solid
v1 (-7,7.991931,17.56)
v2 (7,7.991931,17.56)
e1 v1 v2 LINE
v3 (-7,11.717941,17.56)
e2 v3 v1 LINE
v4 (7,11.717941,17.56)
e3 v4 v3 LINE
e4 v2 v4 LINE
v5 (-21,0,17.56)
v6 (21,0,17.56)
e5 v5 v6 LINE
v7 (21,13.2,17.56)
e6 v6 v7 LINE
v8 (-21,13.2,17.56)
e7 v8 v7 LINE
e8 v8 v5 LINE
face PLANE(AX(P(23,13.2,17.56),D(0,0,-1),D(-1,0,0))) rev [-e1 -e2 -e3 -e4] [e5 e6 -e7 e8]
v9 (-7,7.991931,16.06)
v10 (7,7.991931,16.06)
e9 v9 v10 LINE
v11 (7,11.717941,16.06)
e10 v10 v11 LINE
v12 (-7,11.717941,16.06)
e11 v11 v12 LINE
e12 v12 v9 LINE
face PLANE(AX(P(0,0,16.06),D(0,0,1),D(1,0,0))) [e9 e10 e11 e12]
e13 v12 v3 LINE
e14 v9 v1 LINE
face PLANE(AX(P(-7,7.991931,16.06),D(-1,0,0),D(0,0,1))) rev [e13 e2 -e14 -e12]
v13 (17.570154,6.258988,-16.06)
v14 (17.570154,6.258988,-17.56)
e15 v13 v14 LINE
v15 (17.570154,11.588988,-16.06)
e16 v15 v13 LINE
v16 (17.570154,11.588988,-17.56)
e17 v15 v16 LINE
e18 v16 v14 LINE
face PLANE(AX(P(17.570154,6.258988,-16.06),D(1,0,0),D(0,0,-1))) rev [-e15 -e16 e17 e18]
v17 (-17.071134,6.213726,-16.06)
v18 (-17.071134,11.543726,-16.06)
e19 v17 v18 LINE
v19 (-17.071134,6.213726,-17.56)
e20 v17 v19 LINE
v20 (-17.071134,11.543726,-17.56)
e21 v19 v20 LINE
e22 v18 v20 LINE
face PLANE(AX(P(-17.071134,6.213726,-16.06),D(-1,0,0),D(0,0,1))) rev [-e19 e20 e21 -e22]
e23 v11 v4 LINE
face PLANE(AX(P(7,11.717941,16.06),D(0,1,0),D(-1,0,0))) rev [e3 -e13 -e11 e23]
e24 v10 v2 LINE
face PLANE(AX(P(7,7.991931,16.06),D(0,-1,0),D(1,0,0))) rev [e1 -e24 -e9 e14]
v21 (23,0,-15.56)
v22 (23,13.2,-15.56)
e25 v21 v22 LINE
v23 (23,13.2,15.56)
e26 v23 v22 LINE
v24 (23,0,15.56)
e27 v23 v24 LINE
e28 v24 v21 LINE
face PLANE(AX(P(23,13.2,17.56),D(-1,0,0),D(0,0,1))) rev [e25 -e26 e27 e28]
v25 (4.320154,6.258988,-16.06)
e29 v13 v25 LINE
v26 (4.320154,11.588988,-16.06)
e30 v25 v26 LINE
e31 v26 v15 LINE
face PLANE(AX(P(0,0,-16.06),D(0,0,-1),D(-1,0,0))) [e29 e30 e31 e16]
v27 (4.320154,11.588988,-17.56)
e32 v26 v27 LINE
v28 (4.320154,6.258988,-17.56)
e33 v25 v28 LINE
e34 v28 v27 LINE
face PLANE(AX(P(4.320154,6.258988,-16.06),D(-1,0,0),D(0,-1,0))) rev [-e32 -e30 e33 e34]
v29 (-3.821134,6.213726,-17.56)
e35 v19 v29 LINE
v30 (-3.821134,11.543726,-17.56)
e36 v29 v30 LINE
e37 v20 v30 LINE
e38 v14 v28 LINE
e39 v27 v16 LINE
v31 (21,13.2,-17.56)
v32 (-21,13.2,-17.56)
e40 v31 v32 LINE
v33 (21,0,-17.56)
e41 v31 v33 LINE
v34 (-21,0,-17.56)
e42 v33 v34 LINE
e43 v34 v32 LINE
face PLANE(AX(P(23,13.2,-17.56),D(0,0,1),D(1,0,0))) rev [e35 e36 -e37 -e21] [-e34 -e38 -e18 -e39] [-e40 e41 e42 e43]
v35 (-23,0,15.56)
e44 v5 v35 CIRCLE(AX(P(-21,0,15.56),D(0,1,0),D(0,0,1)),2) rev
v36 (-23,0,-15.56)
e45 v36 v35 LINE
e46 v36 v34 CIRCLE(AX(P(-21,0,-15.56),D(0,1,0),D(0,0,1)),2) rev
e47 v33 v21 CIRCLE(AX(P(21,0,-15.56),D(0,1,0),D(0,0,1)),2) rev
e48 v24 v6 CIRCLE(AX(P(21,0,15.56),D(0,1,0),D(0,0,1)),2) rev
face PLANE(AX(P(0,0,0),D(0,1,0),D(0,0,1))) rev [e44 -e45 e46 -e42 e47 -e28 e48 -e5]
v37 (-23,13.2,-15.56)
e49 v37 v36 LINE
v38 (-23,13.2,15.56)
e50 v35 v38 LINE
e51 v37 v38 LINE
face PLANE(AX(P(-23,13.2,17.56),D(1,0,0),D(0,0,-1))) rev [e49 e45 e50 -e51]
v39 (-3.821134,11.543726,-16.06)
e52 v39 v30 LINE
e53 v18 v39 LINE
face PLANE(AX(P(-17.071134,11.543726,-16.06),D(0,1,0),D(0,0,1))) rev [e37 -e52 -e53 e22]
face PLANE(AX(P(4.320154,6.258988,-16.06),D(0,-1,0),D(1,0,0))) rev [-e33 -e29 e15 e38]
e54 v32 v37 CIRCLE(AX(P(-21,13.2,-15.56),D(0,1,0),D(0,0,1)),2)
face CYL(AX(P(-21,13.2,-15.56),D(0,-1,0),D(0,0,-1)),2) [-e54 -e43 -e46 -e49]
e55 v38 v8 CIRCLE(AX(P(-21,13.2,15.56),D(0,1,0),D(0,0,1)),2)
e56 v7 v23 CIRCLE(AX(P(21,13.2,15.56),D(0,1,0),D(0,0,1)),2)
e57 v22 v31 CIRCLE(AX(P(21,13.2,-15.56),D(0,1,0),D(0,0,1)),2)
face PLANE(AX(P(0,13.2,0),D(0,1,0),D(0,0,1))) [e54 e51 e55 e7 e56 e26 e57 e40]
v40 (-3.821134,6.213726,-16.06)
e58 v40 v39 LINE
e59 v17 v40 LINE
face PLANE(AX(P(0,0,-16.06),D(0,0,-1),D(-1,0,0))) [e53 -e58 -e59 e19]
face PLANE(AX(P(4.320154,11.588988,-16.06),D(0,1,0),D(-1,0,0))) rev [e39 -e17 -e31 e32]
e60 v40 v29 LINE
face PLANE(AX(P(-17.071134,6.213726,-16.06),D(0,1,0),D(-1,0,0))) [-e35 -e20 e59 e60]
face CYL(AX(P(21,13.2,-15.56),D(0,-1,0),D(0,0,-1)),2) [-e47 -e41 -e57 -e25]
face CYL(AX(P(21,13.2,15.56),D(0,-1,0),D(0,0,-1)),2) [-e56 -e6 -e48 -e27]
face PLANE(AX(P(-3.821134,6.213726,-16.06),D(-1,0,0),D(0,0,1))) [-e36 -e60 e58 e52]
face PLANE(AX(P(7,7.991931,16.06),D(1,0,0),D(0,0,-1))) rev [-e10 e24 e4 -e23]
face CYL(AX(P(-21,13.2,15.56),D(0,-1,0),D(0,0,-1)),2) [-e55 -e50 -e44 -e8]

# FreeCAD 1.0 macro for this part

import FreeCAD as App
import Part
import Sketcher

V = App.Vector
Q = App.Units.Quantity


def edges_at(feature, points):
    """Names of the edges that pass closest to the given points."""
    edges = feature.Shape.Edges
    near = lambda p: min(range(len(edges)), key=lambda i: edges[i].distToShape(Part.Vertex(*p))[0])
    return sorted({f"Edge{near(p) + 1}" for p in points})


def add_polygon(sketch, points):
    """Adds a closed chain of lines whose ends are joined by coincident constraints."""
    first, n = sketch.GeometryCount, len(points)
    for a, b in zip(points, points[1:] + points[:1]):
        sketch.addGeometry(Part.LineSegment(App.Vector(*a, 0), App.Vector(*b, 0)), False)
    for i in range(n):
        sketch.addConstraint(Sketcher.Constraint("Coincident", first + i, 2, first + (i + 1) % n, 1))

doc = App.newDocument("Part")
body = doc.addObject("PartDesign::Body", "Body")

sketch1 = body.newObject("Sketcher::SketchObject", "Sketch")
sketch1.AttachmentSupport = (doc.getObject("XZ_Plane"), [""])
sketch1.MapMode = "FlatFace"
add_polygon(sketch1, [(-23, -18), (-23, 18), (23, 18), (23, -18)])
sketch1.addConstraint([
    Sketcher.Constraint("Vertical", 0),
    Sketcher.Constraint("Horizontal", 1),
    Sketcher.Constraint("Vertical", 2),
    Sketcher.Constraint("Horizontal", 3),
    Sketcher.Constraint("Symmetric", 0, 2, 2, 2, -1, 1),
    Sketcher.Constraint("DistanceX", 1, 1, 1, 2, Q("46 mm")),
    Sketcher.Constraint("DistanceY", 0, 1, 0, 2, Q("35.12 mm")),
])
pad1 = body.newObject("PartDesign::Pad", "Pad")
pad1.Profile = sketch1
pad1.Length = 13.2
pad1.Reversed = True

sketch2 = body.newObject("Sketcher::SketchObject", "Sketch001")
sketch2.AttachmentSupport = (doc.getObject("XY_Plane"), [""])
sketch2.MapMode = "FlatFace"
sketch2.AttachmentOffset = App.Placement(V(0, 0, -17.56), App.Rotation())
add_polygon(sketch2, [(18, 12), (18, 6), (4, 6), (4, 12)])
sketch2.addConstraint([
    Sketcher.Constraint("Vertical", 0),
    Sketcher.Constraint("Horizontal", 1),
    Sketcher.Constraint("Vertical", 2),
    Sketcher.Constraint("Horizontal", 3),
    Sketcher.Constraint("DistanceX", 1, 2, 1, 1, Q("13.25 mm")),
    Sketcher.Constraint("DistanceY", 0, 2, 0, 1, Q("5.33 mm")),
    Sketcher.Constraint("DistanceX", -1, 1, 0, 2, Q("17.570154 mm")),
    Sketcher.Constraint("DistanceY", -1, 1, 0, 2, Q("6.258988 mm")),
])
pocket1 = body.newObject("PartDesign::Pocket", "Pocket")
pocket1.Profile = sketch2
pocket1.Length = 1.5
pocket1.Reversed = True

sketch3 = body.newObject("Sketcher::SketchObject", "Sketch002")
sketch3.AttachmentSupport = (doc.getObject("XY_Plane"), [""])
sketch3.MapMode = "FlatFace"
sketch3.AttachmentOffset = App.Placement(V(0, 0, -17.56), App.Rotation())
add_polygon(sketch3, [(-4, 12), (-4, 6), (-17, 6), (-17, 12)])
sketch3.addConstraint([
    Sketcher.Constraint("Vertical", 0),
    Sketcher.Constraint("Horizontal", 1),
    Sketcher.Constraint("Vertical", 2),
    Sketcher.Constraint("Horizontal", 3),
    Sketcher.Constraint("DistanceX", 1, 2, 1, 1, Q("13.25 mm")),
    Sketcher.Constraint("DistanceY", 0, 2, 0, 1, Q("5.33 mm")),
    Sketcher.Constraint("DistanceX", 0, 2, -1, 1, Q("3.821134 mm")),
    Sketcher.Constraint("DistanceY", -1, 1, 0, 2, Q("6.213726 mm")),
])
pocket2 = body.newObject("PartDesign::Pocket", "Pocket001")
pocket2.Profile = sketch3
pocket2.Length = 1.5
pocket2.Reversed = True

sketch4 = body.newObject("Sketcher::SketchObject", "Sketch003")
sketch4.AttachmentSupport = (doc.getObject("XY_Plane"), [""])
sketch4.MapMode = "FlatFace"
sketch4.AttachmentOffset = App.Placement(V(0, 0, 17.56), App.Rotation())
add_polygon(sketch4, [(-7, 11.7), (-7, 8), (7, 8), (7, 11.7)])
sketch4.addConstraint([
    Sketcher.Constraint("Vertical", 0),
    Sketcher.Constraint("Horizontal", 1),
    Sketcher.Constraint("Vertical", 2),
    Sketcher.Constraint("Horizontal", 3),
    Sketcher.Constraint("DistanceX", 1, 1, 1, 2, Q("14 mm")),
    Sketcher.Constraint("DistanceX", 0, 2, -1, 1, Q("7 mm")),
    Sketcher.Constraint("DistanceY", 0, 2, 0, 1, Q("3.72601 mm")),
    Sketcher.Constraint("DistanceY", -1, 1, 0, 2, Q("7.991931 mm")),
])
pocket3 = body.newObject("PartDesign::Pocket", "Pocket002")
pocket3.Profile = sketch4
pocket3.Length = 1.5
doc.recompute()

fillet = body.newObject("PartDesign::Fillet", "Fillet")
fillet.Base = (pocket3, edges_at(pocket3, [
    (-23, 6.6, -17.56),
    (23, 6.6, -17.56),
    (23, 6.6, 17.56),
    (-23, 6.6, 17.56),
]))
fillet.Radius = 2

doc.recompute()
